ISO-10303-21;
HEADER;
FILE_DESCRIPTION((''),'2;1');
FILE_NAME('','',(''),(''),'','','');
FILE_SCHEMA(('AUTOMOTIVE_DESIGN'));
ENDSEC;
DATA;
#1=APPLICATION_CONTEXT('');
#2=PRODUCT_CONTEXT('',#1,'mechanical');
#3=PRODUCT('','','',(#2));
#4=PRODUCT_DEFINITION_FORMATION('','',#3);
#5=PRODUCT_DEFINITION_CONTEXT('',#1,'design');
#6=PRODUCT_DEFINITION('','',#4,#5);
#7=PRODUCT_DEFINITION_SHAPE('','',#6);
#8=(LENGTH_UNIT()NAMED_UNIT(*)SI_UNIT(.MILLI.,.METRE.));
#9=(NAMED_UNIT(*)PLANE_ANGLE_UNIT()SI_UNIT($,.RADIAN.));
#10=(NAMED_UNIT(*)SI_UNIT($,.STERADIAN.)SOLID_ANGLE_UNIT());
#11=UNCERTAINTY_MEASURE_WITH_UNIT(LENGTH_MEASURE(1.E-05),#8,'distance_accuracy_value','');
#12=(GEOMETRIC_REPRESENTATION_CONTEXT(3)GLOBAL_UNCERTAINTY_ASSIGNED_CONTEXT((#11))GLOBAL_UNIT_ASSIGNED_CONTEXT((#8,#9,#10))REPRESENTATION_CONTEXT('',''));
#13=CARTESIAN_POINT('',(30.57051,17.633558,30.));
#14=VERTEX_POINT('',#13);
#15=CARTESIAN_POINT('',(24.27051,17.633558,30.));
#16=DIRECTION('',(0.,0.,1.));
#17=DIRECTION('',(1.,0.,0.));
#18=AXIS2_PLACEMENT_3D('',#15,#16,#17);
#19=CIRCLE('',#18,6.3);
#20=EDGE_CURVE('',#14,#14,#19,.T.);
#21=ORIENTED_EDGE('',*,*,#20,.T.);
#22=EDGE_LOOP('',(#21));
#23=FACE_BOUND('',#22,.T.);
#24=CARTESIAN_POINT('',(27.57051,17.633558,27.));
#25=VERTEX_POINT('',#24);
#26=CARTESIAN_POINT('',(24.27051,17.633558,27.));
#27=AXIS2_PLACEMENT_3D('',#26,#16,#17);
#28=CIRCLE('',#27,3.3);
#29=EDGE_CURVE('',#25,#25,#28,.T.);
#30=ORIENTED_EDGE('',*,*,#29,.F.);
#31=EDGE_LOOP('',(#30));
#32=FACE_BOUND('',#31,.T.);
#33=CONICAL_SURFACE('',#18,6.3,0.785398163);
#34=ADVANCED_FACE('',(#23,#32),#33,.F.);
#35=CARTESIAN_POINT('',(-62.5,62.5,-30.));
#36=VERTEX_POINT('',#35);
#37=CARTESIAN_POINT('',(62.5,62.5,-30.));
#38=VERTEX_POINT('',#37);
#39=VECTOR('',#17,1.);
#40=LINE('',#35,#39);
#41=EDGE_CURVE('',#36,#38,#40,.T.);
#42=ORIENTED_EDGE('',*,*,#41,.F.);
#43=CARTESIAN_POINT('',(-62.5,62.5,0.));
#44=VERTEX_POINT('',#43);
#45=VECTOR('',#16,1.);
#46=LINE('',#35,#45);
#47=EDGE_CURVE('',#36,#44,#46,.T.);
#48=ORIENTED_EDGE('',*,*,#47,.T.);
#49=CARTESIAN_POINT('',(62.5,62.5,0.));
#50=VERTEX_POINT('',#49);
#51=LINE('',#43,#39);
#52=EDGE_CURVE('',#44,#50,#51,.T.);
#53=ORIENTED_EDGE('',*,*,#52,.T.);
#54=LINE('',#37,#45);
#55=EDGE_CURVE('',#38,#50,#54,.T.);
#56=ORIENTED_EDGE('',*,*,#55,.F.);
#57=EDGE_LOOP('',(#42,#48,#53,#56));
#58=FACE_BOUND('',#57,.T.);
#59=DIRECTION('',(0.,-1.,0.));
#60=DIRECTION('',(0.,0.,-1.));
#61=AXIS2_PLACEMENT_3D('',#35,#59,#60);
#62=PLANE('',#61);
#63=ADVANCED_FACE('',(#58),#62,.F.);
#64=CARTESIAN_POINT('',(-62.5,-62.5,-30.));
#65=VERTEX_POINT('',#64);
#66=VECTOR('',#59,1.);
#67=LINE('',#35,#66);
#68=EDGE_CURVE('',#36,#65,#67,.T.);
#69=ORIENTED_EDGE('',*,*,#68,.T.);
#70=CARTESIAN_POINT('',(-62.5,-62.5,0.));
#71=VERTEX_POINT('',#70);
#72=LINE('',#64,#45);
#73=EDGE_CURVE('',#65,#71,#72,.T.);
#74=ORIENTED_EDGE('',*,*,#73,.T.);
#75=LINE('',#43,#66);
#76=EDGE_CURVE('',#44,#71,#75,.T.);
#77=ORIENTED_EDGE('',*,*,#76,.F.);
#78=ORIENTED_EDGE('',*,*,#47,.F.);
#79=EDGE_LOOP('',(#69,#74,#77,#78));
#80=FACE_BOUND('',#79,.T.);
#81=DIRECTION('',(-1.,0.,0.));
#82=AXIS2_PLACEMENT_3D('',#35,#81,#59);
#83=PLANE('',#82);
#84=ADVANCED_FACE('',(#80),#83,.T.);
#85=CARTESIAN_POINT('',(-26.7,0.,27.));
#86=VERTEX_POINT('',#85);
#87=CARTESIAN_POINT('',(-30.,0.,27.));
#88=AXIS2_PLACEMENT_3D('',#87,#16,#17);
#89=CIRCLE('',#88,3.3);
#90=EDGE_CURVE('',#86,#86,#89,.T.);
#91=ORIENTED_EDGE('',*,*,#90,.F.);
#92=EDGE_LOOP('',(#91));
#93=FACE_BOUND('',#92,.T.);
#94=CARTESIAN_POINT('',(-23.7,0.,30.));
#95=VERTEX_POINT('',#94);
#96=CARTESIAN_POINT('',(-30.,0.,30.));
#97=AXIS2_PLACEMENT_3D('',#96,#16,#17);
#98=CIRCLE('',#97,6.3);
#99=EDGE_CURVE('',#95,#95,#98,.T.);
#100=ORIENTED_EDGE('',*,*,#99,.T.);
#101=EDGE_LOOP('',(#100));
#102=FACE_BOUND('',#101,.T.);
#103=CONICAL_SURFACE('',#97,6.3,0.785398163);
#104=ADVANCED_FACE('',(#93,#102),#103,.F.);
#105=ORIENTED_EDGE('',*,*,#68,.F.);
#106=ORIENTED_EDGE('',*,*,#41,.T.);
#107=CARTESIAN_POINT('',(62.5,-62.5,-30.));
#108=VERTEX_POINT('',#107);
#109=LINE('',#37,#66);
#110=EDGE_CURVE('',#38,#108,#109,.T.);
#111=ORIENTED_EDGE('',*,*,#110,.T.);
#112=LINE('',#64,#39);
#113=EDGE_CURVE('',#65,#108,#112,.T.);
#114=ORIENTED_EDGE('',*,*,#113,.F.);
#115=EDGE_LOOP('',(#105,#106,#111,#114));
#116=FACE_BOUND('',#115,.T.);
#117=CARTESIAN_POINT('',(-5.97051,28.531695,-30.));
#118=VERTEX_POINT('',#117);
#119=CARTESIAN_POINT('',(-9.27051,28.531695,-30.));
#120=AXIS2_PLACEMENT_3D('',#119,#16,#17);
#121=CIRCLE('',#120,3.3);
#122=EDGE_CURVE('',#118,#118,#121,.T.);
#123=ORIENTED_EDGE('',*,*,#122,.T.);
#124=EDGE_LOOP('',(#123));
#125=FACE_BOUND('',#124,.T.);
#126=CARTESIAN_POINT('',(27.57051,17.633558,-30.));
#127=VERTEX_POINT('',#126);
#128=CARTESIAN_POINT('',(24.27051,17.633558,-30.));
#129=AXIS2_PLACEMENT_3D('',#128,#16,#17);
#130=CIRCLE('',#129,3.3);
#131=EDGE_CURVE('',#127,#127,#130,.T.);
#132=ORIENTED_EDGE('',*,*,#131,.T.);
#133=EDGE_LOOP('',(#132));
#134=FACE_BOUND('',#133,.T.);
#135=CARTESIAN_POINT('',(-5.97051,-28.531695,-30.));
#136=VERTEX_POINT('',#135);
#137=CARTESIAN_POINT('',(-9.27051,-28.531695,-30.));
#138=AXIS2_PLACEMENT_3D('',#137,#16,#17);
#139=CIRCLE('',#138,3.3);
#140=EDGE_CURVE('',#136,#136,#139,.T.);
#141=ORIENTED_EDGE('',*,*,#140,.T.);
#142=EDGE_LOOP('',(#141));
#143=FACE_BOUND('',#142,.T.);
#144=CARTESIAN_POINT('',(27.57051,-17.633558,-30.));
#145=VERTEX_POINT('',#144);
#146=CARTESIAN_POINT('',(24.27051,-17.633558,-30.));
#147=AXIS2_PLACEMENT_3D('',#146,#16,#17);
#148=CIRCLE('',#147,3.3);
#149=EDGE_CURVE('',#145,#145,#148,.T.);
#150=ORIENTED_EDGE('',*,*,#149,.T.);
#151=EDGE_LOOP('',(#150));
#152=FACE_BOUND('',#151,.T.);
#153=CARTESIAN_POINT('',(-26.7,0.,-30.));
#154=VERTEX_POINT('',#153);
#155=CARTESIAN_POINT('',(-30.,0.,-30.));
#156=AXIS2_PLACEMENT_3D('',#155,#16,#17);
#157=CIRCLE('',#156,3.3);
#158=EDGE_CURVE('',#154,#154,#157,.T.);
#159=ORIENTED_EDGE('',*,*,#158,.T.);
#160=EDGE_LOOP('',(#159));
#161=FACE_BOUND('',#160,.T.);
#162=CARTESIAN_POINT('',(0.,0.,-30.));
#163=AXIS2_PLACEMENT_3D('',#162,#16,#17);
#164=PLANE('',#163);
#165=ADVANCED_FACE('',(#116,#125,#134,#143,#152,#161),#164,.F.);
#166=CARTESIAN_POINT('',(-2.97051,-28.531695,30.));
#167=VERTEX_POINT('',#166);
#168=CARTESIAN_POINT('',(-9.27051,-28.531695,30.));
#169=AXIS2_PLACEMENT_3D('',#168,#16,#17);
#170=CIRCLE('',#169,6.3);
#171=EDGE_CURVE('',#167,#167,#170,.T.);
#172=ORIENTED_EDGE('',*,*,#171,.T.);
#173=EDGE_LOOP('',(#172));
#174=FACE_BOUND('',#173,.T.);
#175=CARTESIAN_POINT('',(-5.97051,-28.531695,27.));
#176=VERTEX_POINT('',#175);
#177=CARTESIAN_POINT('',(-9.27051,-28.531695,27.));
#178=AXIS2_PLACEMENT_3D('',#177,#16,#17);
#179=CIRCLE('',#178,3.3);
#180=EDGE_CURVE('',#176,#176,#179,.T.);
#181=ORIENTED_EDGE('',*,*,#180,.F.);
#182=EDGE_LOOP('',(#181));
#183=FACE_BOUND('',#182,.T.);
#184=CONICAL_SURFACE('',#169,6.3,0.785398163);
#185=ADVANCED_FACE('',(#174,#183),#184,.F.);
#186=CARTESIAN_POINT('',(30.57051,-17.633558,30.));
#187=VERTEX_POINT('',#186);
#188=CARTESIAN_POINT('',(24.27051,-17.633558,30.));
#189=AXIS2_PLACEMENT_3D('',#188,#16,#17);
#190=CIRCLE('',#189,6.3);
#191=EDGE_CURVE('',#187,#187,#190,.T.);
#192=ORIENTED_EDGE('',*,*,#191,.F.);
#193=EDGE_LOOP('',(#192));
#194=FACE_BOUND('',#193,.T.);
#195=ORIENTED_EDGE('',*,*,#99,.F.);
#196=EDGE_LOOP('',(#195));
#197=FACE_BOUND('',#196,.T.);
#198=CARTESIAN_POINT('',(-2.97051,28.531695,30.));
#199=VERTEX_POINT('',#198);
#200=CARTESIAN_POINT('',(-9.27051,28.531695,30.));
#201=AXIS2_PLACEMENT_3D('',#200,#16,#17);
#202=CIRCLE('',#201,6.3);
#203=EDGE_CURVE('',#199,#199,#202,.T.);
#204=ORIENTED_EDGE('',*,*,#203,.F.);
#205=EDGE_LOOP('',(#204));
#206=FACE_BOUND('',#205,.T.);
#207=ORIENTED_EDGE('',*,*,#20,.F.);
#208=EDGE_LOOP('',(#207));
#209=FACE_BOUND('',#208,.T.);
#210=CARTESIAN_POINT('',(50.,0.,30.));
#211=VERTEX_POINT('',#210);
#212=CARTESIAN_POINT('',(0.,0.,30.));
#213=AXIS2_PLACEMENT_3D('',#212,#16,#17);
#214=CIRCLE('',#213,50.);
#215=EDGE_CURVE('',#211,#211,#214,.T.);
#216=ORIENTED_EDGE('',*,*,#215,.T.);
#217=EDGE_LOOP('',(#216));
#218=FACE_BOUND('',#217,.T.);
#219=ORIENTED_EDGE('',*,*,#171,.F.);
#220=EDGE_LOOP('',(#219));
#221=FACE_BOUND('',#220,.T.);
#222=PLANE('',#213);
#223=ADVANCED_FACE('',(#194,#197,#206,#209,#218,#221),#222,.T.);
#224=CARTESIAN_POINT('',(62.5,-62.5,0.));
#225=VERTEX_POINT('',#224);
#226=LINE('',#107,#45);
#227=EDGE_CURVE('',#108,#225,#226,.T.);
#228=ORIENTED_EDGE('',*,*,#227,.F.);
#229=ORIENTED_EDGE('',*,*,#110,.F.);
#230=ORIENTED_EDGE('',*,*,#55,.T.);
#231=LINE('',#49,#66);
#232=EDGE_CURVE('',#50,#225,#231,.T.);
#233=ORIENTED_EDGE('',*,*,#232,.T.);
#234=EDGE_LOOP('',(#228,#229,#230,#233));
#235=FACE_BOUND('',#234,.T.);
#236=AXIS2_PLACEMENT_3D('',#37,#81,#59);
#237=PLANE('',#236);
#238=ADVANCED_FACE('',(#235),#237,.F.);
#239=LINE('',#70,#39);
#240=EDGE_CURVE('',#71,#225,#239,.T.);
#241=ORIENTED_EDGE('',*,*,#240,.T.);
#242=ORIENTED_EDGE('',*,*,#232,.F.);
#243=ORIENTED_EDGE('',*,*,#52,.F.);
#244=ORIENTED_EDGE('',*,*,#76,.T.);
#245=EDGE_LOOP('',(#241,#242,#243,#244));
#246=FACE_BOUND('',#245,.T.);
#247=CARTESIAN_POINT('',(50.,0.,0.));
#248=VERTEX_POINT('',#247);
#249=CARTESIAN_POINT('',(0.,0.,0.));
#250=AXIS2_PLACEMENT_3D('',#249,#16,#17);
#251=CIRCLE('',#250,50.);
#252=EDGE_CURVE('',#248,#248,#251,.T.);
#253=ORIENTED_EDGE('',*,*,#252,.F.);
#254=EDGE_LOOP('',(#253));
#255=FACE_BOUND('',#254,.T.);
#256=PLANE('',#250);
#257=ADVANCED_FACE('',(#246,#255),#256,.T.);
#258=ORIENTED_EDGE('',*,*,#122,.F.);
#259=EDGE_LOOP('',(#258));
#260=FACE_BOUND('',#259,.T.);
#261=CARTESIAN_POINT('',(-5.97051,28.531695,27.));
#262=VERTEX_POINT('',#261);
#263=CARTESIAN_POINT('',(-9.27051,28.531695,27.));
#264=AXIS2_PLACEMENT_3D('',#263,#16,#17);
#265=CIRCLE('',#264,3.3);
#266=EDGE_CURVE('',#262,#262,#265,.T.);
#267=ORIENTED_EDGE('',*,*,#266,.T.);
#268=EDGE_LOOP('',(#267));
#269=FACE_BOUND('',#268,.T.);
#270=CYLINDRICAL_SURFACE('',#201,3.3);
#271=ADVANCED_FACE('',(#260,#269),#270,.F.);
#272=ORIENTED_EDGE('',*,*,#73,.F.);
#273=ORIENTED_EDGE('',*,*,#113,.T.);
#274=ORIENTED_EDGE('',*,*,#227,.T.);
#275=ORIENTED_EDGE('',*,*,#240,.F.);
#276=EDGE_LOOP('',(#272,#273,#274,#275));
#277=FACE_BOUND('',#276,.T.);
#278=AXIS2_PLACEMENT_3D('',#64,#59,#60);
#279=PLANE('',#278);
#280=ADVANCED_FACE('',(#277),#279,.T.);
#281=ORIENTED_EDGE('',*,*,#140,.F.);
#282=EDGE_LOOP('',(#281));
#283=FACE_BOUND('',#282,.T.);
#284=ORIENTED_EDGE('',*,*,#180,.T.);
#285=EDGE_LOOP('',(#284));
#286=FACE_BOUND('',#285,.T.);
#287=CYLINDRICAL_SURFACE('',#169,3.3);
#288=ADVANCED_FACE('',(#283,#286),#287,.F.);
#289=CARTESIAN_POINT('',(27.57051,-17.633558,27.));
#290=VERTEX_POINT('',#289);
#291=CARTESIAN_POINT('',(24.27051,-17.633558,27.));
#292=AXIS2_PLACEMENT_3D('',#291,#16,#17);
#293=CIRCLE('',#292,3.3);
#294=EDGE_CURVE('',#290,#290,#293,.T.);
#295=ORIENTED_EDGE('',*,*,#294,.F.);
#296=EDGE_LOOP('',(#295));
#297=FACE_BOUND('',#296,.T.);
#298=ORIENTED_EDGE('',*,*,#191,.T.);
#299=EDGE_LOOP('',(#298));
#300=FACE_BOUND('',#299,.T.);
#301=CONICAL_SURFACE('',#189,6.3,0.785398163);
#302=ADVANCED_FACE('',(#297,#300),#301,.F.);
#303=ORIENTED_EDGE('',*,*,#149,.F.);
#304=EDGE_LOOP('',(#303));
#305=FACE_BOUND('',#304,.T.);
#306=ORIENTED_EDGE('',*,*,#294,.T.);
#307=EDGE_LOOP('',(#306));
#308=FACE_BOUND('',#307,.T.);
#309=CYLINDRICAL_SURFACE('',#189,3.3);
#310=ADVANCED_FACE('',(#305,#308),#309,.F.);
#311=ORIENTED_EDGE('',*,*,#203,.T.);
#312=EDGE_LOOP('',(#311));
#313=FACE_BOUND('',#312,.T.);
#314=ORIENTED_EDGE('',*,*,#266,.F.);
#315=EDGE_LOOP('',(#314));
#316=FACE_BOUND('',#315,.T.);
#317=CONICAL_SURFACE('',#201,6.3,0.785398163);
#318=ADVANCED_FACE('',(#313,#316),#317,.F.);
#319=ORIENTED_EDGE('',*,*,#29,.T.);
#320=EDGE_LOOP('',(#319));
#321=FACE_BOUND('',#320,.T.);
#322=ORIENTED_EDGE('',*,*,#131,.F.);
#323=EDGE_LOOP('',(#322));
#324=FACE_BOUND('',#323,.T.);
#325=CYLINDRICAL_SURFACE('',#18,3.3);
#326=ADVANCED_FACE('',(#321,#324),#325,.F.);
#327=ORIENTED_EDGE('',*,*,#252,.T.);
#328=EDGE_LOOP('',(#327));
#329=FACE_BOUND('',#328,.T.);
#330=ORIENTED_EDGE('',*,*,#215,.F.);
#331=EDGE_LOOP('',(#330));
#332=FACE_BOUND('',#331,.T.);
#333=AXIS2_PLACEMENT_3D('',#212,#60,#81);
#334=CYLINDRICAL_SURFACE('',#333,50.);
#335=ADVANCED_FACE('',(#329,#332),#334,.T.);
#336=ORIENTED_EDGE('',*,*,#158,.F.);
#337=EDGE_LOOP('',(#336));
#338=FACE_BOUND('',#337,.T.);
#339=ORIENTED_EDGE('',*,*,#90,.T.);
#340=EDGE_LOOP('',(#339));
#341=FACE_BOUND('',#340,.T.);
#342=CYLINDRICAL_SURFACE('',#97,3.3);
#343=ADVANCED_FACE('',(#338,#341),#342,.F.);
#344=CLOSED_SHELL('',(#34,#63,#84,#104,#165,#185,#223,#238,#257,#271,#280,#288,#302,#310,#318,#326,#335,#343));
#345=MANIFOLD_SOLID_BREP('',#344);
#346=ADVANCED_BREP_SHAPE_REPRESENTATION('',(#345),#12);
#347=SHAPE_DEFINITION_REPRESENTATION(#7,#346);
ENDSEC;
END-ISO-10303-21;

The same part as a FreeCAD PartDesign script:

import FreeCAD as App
import Part
import Sketcher
Q = App.Units.Quantity

doc = App.newDocument("Part")
params = doc.addObject("Spreadsheet::Sheet", "Params")
for row, (alias, value) in enumerate([
    ("sketch1_width", "125 mm"),
    ("pad1_length", "30 mm"),
    ("sketch2_diameter", "100 mm"),
    ("pad2_length", "30 mm"),
    ("sketch3_diameter", "6.6 mm"),
    ("hole_diameter", "6.6 mm"),
    ("hole_csink_diameter", "12.6 mm"),
], start=1):
    params.set(f"A{row}", alias)
    params.set(f"B{row}", "=" + value)
    params.setAlias(f"B{row}", alias)

body = doc.addObject("PartDesign::Body", "Body")

sketch1 = body.newObject("Sketcher::SketchObject", "Sketch")
sketch1.AttachmentSupport = (doc.getObject("XY_Plane"), [""])
sketch1.MapMode = "FlatFace"
sketch1.addGeometry([
    Part.LineSegment(App.Vector(-62, 62, 0), App.Vector(-62, -62, 0)),
    Part.LineSegment(App.Vector(-62, -62, 0), App.Vector(62, -62, 0)),
    Part.LineSegment(App.Vector(62, -62, 0), App.Vector(62, 62, 0)),
    Part.LineSegment(App.Vector(62, 62, 0), App.Vector(-62, 62, 0)),
], False)
sketch1.addConstraint([
    Sketcher.Constraint("Coincident", 0, 2, 1, 1),
    Sketcher.Constraint("Coincident", 1, 2, 2, 1),
    Sketcher.Constraint("Coincident", 2, 2, 3, 1),
    Sketcher.Constraint("Coincident", 3, 2, 0, 1),
    Sketcher.Constraint("Vertical", 0),
    Sketcher.Constraint("Horizontal", 1),
    Sketcher.Constraint("Vertical", 2),
    Sketcher.Constraint("Horizontal", 3),
    Sketcher.Constraint("Symmetric", 0, 2, 2, 2, -1, 1),
    Sketcher.Constraint("Equal", 3, 0),
    Sketcher.Constraint("DistanceX", 1, 1, 1, 2, Q("125 mm")),
])
sketch1.setExpression("Constraints[10]", "Params.sketch1_width")
pad1 = body.newObject("PartDesign::Pad", "Pad")
pad1.Profile = sketch1
pad1.setExpression("Length", "Params.pad1_length")
pad1.Reversed = True

sketch2 = body.newObject("Sketcher::SketchObject", "Sketch001")
sketch2.AttachmentSupport = (doc.getObject("XY_Plane"), [""])
sketch2.MapMode = "FlatFace"
sketch2.addGeometry(Part.Circle(App.Vector(0, 0, 0), App.Vector(0, 0, 1), 50), False)
sketch2.addConstraint([
    Sketcher.Constraint("Coincident", 0, 3, -1, 1),
    Sketcher.Constraint("Diameter", 0, Q("100 mm")),
])
sketch2.setExpression("Constraints[1]", "Params.sketch2_diameter")
pad2 = body.newObject("PartDesign::Pad", "Pad001")
pad2.Profile = sketch2
pad2.setExpression("Length", "Params.pad2_length")

sketch3 = body.newObject("Sketcher::SketchObject", "Sketch002")
sketch3.AttachmentSupport = (doc.getObject("XY_Plane"), [""])
sketch3.MapMode = "FlatFace"
sketch3.AttachmentOffset = App.Placement(App.Vector(0, 0, 30), App.Rotation())
sketch3.addGeometry(Part.Circle(App.Vector(-30, 0, 0), App.Vector(0, 0, 1), 3.3), False)
sketch3.addConstraint([
    Sketcher.Constraint("PointOnObject", 0, 3, -1),
    Sketcher.Constraint("Diameter", 0, Q("6.6 mm")),
    Sketcher.Constraint("DistanceX", 0, 3, -1, 1, Q("30 mm")),
])
sketch3.setExpression("Constraints[1]", "Params.sketch3_diameter")
doc.recompute()
hole = body.newObject("PartDesign::Hole", "Hole")
hole.Profile = sketch3
hole.ThreadType = "None"
hole.setExpression("Diameter", "Params.hole_diameter")
hole.DepthType = "ThroughAll"
hole.HoleCutType = "Countersink"
hole.setExpression("HoleCutDiameter", "Params.hole_csink_diameter")
hole.HoleCutCountersinkAngle = 90
doc.recompute()

polarpattern = body.newObject("PartDesign::PolarPattern", "PolarPattern")
polarpattern.Originals = [hole]
polarpattern.Axis = (doc.getObject("Z_Axis"), [""])
polarpattern.Angle = 360
polarpattern.Occurrences = 5
body.Tip = polarpattern

doc.recompute()
